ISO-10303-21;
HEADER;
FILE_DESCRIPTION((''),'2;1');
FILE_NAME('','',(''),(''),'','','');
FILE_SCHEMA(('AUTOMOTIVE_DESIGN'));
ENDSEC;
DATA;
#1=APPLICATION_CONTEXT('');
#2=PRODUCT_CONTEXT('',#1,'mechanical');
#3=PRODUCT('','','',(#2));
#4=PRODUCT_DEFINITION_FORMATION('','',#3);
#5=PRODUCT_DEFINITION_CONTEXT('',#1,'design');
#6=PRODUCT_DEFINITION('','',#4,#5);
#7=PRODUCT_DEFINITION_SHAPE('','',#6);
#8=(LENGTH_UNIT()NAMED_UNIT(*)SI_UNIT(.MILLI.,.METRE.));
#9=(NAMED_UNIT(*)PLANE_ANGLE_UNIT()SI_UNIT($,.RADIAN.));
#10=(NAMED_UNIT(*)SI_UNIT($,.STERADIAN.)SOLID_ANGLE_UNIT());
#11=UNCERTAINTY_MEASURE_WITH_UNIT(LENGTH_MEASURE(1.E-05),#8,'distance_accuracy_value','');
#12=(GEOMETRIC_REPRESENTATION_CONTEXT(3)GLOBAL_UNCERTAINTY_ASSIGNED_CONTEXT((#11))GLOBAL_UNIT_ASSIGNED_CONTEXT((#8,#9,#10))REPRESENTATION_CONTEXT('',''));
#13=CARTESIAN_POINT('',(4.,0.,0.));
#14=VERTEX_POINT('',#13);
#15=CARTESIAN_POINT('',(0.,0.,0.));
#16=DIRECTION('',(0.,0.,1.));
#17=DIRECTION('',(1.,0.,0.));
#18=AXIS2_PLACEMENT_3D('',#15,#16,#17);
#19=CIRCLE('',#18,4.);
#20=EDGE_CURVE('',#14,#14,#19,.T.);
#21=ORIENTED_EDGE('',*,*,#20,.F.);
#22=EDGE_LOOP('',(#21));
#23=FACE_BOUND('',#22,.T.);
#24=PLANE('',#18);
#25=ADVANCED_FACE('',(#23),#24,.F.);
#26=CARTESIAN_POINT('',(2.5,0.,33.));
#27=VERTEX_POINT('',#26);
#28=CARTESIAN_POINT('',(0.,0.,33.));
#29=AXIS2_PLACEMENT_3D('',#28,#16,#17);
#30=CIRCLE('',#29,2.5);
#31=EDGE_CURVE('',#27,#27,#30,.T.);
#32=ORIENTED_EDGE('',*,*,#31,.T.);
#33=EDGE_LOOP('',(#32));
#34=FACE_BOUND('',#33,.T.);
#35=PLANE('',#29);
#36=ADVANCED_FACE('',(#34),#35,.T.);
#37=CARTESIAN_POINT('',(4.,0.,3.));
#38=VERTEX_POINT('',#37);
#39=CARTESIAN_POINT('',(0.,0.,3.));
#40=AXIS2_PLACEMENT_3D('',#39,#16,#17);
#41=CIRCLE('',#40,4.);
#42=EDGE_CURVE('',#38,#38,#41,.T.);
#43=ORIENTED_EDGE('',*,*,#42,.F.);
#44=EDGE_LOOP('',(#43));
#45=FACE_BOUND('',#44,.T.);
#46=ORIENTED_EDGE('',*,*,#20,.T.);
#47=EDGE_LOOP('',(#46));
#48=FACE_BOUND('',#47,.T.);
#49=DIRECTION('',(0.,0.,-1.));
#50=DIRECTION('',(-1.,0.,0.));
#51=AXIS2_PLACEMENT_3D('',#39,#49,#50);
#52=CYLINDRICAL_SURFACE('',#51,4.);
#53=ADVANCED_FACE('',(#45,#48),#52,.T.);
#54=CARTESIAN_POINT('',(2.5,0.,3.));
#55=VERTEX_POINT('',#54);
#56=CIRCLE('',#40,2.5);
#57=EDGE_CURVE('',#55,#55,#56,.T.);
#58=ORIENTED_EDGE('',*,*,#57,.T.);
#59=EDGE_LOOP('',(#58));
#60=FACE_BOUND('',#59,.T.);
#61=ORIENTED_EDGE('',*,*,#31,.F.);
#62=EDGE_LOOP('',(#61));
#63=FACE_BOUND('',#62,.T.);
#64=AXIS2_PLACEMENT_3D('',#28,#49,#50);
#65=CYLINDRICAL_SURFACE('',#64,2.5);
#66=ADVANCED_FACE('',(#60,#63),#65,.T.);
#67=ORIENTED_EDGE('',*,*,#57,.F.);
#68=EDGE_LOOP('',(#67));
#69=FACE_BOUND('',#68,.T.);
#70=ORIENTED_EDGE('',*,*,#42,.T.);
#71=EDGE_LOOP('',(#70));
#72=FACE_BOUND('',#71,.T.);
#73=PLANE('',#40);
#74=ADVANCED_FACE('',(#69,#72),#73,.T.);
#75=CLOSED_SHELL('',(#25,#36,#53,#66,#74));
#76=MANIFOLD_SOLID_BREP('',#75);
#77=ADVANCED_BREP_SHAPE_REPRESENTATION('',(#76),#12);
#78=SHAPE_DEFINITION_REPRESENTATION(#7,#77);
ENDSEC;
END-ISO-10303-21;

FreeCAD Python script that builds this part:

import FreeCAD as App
import Part
import Sketcher

V = App.Vector
Q = App.Units.Quantity

doc = App.newDocument("Part")
params = doc.addObject("Spreadsheet::Sheet", "Params")
for row, (alias, value) in enumerate([
    ("sketch1_diameter", "8 mm"),
    ("pad1_length", "3 mm"),
    ("sketch2_diameter", "5 mm"),
    ("pad2_length", "30 mm"),
], start=1):
    params.set(f"A{row}", alias)
    params.set(f"B{row}", "=" + value)
    params.setAlias(f"B{row}", alias)

body = doc.addObject("PartDesign::Body", "Body")

# Sketch on XY plane
sketch1 = doc.addObject("Sketcher::SketchObject", "Sketch")
body.addObject(sketch1)
sketch1.AttachmentSupport = (doc.XY_Plane, [""])
sketch1.MapMode = "FlatFace"
sketch1.addGeometry(Part.Circle(V(0, 0, 0), V(0, 0, 1), 4), False)
sketch1.addConstraint([
    Sketcher.Constraint("Coincident", 0, 3, -1, 1),
    Sketcher.Constraint("Diameter", 0, Q("8 mm")),
])
sketch1.setExpression("Constraints[1]", "Params.sketch1_diameter")
pad1 = doc.addObject("PartDesign::Pad", "Pad")
body.addObject(pad1)
pad1.Profile = sketch1
pad1.setExpression("Length", "Params.pad1_length")

# Sketch on XY plane
sketch2 = doc.addObject("Sketcher::SketchObject", "Sketch001")
body.addObject(sketch2)
sketch2.AttachmentSupport = (doc.XY_Plane, [""])
sketch2.MapMode = "FlatFace"
sketch2.AttachmentOffset = App.Placement(V(0, 0, 3), App.Rotation())
sketch2.addGeometry(Part.Circle(V(0, 0, 0), V(0, 0, 1), 2.5), False)
sketch2.addConstraint([
    Sketcher.Constraint("Coincident", 0, 3, -1, 1),
    Sketcher.Constraint("Diameter", 0, Q("5 mm")),
])
sketch2.setExpression("Constraints[1]", "Params.sketch2_diameter")
pad2 = doc.addObject("PartDesign::Pad", "Pad001")
body.addObject(pad2)
pad2.Profile = sketch2
pad2.setExpression("Length", "Params.pad2_length")

doc.recompute()
